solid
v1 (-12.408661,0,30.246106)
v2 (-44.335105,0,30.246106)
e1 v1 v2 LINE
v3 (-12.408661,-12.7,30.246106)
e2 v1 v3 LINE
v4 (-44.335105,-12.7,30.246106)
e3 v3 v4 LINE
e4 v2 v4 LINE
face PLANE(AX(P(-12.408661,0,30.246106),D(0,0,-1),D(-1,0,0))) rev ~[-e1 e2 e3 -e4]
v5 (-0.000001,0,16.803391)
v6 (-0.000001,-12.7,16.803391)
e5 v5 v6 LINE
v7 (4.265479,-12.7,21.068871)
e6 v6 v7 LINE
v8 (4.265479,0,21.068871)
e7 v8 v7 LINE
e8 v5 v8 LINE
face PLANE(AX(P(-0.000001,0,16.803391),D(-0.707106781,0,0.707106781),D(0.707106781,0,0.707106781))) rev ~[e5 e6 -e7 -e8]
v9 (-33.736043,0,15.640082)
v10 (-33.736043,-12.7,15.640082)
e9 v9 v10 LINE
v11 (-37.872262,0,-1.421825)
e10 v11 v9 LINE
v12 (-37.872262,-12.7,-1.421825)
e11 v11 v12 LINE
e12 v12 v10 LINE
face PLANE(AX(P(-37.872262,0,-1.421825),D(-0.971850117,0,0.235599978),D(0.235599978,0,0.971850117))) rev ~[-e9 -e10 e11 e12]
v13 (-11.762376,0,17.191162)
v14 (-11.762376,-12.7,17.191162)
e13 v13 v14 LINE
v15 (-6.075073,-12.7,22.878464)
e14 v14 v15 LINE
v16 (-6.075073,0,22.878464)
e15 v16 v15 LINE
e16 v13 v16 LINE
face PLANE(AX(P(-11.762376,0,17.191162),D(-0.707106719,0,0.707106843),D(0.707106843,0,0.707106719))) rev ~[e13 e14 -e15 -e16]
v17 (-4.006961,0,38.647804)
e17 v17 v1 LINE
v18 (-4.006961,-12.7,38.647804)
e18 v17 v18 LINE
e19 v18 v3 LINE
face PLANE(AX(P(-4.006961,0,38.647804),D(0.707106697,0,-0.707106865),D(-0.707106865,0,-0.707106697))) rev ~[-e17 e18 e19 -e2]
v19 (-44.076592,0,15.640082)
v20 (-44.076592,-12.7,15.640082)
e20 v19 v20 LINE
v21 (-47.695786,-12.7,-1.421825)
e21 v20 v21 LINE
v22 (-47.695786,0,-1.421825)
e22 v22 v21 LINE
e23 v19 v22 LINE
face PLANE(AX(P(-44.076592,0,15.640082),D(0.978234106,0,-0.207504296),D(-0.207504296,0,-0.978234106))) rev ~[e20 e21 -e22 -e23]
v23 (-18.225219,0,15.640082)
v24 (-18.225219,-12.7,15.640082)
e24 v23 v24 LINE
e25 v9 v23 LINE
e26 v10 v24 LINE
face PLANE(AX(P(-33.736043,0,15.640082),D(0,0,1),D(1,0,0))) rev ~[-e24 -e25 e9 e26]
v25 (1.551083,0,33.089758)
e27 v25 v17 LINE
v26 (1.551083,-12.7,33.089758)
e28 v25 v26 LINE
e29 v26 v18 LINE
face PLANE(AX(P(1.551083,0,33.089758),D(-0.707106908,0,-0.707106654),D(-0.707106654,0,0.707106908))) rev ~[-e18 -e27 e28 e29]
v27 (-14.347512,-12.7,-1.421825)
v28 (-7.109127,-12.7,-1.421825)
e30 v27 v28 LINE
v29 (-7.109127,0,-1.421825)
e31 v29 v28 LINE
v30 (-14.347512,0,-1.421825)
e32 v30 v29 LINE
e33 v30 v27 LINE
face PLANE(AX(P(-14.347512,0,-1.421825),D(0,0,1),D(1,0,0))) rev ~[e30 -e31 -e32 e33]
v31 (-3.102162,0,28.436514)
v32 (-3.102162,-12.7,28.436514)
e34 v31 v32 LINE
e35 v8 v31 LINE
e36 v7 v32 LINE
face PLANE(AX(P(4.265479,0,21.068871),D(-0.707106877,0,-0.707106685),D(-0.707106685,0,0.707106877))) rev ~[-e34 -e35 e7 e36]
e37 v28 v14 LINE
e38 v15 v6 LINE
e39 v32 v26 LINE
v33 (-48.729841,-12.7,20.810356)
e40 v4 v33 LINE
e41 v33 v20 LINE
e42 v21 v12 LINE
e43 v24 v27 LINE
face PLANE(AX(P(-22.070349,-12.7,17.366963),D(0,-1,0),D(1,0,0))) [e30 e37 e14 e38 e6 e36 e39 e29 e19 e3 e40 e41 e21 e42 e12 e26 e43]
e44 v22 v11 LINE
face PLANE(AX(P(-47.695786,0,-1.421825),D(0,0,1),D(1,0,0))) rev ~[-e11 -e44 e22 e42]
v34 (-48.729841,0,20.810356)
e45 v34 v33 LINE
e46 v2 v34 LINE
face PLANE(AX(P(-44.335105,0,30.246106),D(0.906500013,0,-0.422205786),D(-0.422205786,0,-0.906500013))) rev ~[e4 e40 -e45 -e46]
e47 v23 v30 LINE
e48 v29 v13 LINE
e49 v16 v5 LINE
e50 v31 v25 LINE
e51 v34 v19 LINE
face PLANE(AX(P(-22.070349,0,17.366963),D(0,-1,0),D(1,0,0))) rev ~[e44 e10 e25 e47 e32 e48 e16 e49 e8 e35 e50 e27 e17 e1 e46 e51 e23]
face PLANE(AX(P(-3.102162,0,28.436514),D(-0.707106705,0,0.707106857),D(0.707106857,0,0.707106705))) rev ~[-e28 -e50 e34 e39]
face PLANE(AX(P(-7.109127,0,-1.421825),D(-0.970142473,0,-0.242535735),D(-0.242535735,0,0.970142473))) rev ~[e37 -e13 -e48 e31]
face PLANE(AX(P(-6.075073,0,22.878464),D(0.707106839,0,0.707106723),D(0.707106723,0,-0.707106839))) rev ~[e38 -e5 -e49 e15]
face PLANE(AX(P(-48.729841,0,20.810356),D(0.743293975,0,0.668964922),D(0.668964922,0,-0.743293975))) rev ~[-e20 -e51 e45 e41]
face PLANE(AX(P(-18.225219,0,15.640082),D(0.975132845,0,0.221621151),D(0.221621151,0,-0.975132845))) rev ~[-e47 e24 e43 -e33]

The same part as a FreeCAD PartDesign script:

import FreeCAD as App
import Part
import Sketcher

V = App.Vector
Q = App.Units.Quantity

doc = App.newDocument("Part")
body = doc.addObject("PartDesign::Body", "Body")

# Sketch on XZ plane
sketch1 = body.newObject("Sketcher::SketchObject", "Sketch")
sketch1.AttachmentSupport = (doc.getObject("XZ_Plane"), [""])
sketch1.MapMode = "FlatFace"
sketch1.addGeometry([
    Part.LineSegment(V(-44.076592, 15.640082, 0), V(-47.695786, -1.421825, 0)),  # 0
    Part.LineSegment(V(-47.695786, -1.421825, 0), V(-37.872262, -1.421825, 0)),  # 1
    Part.LineSegment(V(-37.872262, -1.421825, 0), V(-33.736043, 15.640082, 0)),  # 2
    Part.LineSegment(V(-33.736043, 15.640082, 0), V(-18.225219, 15.640082, 0)),  # 3
    Part.LineSegment(V(-18.225219, 15.640082, 0), V(-14.347512, -1.421825, 0)),  # 4
    Part.LineSegment(V(-14.347512, -1.421825, 0), V(-7.109127, -1.421825, 0)),  # 5
    Part.LineSegment(V(-7.109127, -1.421825, 0), V(-11.762376, 17.191162, 0)),  # 6
    Part.LineSegment(V(-11.762376, 17.191162, 0), V(-6.075073, 22.878464, 0)),  # 7
    Part.LineSegment(V(-6.075073, 22.878464, 0), V(-0.000001, 16.803391, 0)),  # 8
    Part.LineSegment(V(-0.000001, 16.803391, 0), V(4.265479, 21.068871, 0)),  # 9
    Part.LineSegment(V(4.265479, 21.068871, 0), V(-3.102162, 28.436514, 0)),  # 10
    Part.LineSegment(V(-3.102162, 28.436514, 0), V(1.551083, 33.089758, 0)),  # 11
    Part.LineSegment(V(1.551083, 33.089758, 0), V(-4.006961, 38.647804, 0)),  # 12
    Part.LineSegment(V(-4.006961, 38.647804, 0), V(-12.408661, 30.246106, 0)),  # 13
    Part.LineSegment(V(-12.408661, 30.246106, 0), V(-44.335105, 30.246106, 0)),  # 14
    Part.LineSegment(V(-44.335105, 30.246106, 0), V(-48.729841, 20.810356, 0)),  # 15
    Part.LineSegment(V(-48.729841, 20.810356, 0), V(-44.076592, 15.640082, 0)),  # 16
], False)
sketch1.addConstraint([
    Sketcher.Constraint("Coincident", 0, 2, 1, 1),
    Sketcher.Constraint("Coincident", 1, 2, 2, 1),
    Sketcher.Constraint("Coincident", 2, 2, 3, 1),
    Sketcher.Constraint("Coincident", 3, 2, 4, 1),
    Sketcher.Constraint("Coincident", 4, 2, 5, 1),
    Sketcher.Constraint("Coincident", 5, 2, 6, 1),
    Sketcher.Constraint("Coincident", 6, 2, 7, 1),
    Sketcher.Constraint("Coincident", 7, 2, 8, 1),
    Sketcher.Constraint("Coincident", 8, 2, 9, 1),
    Sketcher.Constraint("Coincident", 9, 2, 10, 1),
    Sketcher.Constraint("Coincident", 10, 2, 11, 1),
    Sketcher.Constraint("Coincident", 11, 2, 12, 1),
    Sketcher.Constraint("Coincident", 12, 2, 13, 1),
    Sketcher.Constraint("Coincident", 13, 2, 14, 1),
    Sketcher.Constraint("Coincident", 14, 2, 15, 1),
    Sketcher.Constraint("Coincident", 15, 2, 16, 1),
    Sketcher.Constraint("Coincident", 16, 2, 0, 1),
    Sketcher.Constraint("Horizontal", 1),
    Sketcher.Constraint("Horizontal", 3),
    Sketcher.Constraint("Horizontal", 5),
    Sketcher.Constraint("Horizontal", 14),
    Sketcher.Constraint("PointOnObject", 8, 2, -2),
    Sketcher.Constraint("Perpendicular", 7, 8),
    Sketcher.Constraint("Perpendicular", 8, 9),
    Sketcher.Constraint("Perpendicular", 9, 10),
    Sketcher.Constraint("Perpendicular", 10, 11),
    Sketcher.Constraint("Perpendicular", 11, 12),
    Sketcher.Constraint("Perpendicular", 12, 13),
    Sketcher.Constraint("Horizontal", 1, 2, 4, 2),
    Sketcher.Constraint("Horizontal", 3, 2, 16, 2),
    Sketcher.Constraint("Angle", 7, Q("44.999995 deg")),
    Sketcher.Constraint("DistanceX", 0, 2, 5, 2, Q("1.5979 in")),
    Sketcher.Constraint("Distance", 9, 6.0323),
    Sketcher.Constraint("DistanceX", 12, 2, 10, 2, 0.904799),
    Sketcher.Constraint("DistanceX", 13, 2, 10, 2, 9.306499),
    Sketcher.Constraint("Distance", 2, 17.556109),
    Sketcher.Constraint("Distance", 6, 19.185828),
    Sketcher.Constraint("Distance", 7, 8.04306),
    Sketcher.Constraint("Distance", 8, 8.59145),
    Sketcher.Constraint("Distance", 10, 10.419419),
    Sketcher.Constraint("Distance", 11, 6.580681),
    Sketcher.Constraint("Distance", 15, 10.40899),
    Sketcher.Constraint("DistanceX", 1, 1, 1, 2, 9.823524),
    Sketcher.Constraint("DistanceX", 3, 1, 3, 2, 15.510824),
    Sketcher.Constraint("DistanceX", 5, 1, 5, 2, 7.238385),
    Sketcher.Constraint("DistanceX", 14, 2, 14, 1, 31.926444),
    Sketcher.Constraint("DistanceX", 3, 2, -1, 1, 18.225219),
    Sketcher.Constraint("DistanceY", -1, 1, 6, 2, 17.191162),
    Sketcher.Constraint("DistanceX", 15, 2, -1, 1, 48.729841),
    Sketcher.Constraint("DistanceX", 16, 2, -1, 1, 44.076592),
    Sketcher.Constraint("DistanceX", 1, 2, 2, 2, 4.136219),
])
pad1 = body.newObject("PartDesign::Pad", "Pad")
pad1.Profile = sketch1
pad1.Length = Q("0.5 in")

doc.recompute()
